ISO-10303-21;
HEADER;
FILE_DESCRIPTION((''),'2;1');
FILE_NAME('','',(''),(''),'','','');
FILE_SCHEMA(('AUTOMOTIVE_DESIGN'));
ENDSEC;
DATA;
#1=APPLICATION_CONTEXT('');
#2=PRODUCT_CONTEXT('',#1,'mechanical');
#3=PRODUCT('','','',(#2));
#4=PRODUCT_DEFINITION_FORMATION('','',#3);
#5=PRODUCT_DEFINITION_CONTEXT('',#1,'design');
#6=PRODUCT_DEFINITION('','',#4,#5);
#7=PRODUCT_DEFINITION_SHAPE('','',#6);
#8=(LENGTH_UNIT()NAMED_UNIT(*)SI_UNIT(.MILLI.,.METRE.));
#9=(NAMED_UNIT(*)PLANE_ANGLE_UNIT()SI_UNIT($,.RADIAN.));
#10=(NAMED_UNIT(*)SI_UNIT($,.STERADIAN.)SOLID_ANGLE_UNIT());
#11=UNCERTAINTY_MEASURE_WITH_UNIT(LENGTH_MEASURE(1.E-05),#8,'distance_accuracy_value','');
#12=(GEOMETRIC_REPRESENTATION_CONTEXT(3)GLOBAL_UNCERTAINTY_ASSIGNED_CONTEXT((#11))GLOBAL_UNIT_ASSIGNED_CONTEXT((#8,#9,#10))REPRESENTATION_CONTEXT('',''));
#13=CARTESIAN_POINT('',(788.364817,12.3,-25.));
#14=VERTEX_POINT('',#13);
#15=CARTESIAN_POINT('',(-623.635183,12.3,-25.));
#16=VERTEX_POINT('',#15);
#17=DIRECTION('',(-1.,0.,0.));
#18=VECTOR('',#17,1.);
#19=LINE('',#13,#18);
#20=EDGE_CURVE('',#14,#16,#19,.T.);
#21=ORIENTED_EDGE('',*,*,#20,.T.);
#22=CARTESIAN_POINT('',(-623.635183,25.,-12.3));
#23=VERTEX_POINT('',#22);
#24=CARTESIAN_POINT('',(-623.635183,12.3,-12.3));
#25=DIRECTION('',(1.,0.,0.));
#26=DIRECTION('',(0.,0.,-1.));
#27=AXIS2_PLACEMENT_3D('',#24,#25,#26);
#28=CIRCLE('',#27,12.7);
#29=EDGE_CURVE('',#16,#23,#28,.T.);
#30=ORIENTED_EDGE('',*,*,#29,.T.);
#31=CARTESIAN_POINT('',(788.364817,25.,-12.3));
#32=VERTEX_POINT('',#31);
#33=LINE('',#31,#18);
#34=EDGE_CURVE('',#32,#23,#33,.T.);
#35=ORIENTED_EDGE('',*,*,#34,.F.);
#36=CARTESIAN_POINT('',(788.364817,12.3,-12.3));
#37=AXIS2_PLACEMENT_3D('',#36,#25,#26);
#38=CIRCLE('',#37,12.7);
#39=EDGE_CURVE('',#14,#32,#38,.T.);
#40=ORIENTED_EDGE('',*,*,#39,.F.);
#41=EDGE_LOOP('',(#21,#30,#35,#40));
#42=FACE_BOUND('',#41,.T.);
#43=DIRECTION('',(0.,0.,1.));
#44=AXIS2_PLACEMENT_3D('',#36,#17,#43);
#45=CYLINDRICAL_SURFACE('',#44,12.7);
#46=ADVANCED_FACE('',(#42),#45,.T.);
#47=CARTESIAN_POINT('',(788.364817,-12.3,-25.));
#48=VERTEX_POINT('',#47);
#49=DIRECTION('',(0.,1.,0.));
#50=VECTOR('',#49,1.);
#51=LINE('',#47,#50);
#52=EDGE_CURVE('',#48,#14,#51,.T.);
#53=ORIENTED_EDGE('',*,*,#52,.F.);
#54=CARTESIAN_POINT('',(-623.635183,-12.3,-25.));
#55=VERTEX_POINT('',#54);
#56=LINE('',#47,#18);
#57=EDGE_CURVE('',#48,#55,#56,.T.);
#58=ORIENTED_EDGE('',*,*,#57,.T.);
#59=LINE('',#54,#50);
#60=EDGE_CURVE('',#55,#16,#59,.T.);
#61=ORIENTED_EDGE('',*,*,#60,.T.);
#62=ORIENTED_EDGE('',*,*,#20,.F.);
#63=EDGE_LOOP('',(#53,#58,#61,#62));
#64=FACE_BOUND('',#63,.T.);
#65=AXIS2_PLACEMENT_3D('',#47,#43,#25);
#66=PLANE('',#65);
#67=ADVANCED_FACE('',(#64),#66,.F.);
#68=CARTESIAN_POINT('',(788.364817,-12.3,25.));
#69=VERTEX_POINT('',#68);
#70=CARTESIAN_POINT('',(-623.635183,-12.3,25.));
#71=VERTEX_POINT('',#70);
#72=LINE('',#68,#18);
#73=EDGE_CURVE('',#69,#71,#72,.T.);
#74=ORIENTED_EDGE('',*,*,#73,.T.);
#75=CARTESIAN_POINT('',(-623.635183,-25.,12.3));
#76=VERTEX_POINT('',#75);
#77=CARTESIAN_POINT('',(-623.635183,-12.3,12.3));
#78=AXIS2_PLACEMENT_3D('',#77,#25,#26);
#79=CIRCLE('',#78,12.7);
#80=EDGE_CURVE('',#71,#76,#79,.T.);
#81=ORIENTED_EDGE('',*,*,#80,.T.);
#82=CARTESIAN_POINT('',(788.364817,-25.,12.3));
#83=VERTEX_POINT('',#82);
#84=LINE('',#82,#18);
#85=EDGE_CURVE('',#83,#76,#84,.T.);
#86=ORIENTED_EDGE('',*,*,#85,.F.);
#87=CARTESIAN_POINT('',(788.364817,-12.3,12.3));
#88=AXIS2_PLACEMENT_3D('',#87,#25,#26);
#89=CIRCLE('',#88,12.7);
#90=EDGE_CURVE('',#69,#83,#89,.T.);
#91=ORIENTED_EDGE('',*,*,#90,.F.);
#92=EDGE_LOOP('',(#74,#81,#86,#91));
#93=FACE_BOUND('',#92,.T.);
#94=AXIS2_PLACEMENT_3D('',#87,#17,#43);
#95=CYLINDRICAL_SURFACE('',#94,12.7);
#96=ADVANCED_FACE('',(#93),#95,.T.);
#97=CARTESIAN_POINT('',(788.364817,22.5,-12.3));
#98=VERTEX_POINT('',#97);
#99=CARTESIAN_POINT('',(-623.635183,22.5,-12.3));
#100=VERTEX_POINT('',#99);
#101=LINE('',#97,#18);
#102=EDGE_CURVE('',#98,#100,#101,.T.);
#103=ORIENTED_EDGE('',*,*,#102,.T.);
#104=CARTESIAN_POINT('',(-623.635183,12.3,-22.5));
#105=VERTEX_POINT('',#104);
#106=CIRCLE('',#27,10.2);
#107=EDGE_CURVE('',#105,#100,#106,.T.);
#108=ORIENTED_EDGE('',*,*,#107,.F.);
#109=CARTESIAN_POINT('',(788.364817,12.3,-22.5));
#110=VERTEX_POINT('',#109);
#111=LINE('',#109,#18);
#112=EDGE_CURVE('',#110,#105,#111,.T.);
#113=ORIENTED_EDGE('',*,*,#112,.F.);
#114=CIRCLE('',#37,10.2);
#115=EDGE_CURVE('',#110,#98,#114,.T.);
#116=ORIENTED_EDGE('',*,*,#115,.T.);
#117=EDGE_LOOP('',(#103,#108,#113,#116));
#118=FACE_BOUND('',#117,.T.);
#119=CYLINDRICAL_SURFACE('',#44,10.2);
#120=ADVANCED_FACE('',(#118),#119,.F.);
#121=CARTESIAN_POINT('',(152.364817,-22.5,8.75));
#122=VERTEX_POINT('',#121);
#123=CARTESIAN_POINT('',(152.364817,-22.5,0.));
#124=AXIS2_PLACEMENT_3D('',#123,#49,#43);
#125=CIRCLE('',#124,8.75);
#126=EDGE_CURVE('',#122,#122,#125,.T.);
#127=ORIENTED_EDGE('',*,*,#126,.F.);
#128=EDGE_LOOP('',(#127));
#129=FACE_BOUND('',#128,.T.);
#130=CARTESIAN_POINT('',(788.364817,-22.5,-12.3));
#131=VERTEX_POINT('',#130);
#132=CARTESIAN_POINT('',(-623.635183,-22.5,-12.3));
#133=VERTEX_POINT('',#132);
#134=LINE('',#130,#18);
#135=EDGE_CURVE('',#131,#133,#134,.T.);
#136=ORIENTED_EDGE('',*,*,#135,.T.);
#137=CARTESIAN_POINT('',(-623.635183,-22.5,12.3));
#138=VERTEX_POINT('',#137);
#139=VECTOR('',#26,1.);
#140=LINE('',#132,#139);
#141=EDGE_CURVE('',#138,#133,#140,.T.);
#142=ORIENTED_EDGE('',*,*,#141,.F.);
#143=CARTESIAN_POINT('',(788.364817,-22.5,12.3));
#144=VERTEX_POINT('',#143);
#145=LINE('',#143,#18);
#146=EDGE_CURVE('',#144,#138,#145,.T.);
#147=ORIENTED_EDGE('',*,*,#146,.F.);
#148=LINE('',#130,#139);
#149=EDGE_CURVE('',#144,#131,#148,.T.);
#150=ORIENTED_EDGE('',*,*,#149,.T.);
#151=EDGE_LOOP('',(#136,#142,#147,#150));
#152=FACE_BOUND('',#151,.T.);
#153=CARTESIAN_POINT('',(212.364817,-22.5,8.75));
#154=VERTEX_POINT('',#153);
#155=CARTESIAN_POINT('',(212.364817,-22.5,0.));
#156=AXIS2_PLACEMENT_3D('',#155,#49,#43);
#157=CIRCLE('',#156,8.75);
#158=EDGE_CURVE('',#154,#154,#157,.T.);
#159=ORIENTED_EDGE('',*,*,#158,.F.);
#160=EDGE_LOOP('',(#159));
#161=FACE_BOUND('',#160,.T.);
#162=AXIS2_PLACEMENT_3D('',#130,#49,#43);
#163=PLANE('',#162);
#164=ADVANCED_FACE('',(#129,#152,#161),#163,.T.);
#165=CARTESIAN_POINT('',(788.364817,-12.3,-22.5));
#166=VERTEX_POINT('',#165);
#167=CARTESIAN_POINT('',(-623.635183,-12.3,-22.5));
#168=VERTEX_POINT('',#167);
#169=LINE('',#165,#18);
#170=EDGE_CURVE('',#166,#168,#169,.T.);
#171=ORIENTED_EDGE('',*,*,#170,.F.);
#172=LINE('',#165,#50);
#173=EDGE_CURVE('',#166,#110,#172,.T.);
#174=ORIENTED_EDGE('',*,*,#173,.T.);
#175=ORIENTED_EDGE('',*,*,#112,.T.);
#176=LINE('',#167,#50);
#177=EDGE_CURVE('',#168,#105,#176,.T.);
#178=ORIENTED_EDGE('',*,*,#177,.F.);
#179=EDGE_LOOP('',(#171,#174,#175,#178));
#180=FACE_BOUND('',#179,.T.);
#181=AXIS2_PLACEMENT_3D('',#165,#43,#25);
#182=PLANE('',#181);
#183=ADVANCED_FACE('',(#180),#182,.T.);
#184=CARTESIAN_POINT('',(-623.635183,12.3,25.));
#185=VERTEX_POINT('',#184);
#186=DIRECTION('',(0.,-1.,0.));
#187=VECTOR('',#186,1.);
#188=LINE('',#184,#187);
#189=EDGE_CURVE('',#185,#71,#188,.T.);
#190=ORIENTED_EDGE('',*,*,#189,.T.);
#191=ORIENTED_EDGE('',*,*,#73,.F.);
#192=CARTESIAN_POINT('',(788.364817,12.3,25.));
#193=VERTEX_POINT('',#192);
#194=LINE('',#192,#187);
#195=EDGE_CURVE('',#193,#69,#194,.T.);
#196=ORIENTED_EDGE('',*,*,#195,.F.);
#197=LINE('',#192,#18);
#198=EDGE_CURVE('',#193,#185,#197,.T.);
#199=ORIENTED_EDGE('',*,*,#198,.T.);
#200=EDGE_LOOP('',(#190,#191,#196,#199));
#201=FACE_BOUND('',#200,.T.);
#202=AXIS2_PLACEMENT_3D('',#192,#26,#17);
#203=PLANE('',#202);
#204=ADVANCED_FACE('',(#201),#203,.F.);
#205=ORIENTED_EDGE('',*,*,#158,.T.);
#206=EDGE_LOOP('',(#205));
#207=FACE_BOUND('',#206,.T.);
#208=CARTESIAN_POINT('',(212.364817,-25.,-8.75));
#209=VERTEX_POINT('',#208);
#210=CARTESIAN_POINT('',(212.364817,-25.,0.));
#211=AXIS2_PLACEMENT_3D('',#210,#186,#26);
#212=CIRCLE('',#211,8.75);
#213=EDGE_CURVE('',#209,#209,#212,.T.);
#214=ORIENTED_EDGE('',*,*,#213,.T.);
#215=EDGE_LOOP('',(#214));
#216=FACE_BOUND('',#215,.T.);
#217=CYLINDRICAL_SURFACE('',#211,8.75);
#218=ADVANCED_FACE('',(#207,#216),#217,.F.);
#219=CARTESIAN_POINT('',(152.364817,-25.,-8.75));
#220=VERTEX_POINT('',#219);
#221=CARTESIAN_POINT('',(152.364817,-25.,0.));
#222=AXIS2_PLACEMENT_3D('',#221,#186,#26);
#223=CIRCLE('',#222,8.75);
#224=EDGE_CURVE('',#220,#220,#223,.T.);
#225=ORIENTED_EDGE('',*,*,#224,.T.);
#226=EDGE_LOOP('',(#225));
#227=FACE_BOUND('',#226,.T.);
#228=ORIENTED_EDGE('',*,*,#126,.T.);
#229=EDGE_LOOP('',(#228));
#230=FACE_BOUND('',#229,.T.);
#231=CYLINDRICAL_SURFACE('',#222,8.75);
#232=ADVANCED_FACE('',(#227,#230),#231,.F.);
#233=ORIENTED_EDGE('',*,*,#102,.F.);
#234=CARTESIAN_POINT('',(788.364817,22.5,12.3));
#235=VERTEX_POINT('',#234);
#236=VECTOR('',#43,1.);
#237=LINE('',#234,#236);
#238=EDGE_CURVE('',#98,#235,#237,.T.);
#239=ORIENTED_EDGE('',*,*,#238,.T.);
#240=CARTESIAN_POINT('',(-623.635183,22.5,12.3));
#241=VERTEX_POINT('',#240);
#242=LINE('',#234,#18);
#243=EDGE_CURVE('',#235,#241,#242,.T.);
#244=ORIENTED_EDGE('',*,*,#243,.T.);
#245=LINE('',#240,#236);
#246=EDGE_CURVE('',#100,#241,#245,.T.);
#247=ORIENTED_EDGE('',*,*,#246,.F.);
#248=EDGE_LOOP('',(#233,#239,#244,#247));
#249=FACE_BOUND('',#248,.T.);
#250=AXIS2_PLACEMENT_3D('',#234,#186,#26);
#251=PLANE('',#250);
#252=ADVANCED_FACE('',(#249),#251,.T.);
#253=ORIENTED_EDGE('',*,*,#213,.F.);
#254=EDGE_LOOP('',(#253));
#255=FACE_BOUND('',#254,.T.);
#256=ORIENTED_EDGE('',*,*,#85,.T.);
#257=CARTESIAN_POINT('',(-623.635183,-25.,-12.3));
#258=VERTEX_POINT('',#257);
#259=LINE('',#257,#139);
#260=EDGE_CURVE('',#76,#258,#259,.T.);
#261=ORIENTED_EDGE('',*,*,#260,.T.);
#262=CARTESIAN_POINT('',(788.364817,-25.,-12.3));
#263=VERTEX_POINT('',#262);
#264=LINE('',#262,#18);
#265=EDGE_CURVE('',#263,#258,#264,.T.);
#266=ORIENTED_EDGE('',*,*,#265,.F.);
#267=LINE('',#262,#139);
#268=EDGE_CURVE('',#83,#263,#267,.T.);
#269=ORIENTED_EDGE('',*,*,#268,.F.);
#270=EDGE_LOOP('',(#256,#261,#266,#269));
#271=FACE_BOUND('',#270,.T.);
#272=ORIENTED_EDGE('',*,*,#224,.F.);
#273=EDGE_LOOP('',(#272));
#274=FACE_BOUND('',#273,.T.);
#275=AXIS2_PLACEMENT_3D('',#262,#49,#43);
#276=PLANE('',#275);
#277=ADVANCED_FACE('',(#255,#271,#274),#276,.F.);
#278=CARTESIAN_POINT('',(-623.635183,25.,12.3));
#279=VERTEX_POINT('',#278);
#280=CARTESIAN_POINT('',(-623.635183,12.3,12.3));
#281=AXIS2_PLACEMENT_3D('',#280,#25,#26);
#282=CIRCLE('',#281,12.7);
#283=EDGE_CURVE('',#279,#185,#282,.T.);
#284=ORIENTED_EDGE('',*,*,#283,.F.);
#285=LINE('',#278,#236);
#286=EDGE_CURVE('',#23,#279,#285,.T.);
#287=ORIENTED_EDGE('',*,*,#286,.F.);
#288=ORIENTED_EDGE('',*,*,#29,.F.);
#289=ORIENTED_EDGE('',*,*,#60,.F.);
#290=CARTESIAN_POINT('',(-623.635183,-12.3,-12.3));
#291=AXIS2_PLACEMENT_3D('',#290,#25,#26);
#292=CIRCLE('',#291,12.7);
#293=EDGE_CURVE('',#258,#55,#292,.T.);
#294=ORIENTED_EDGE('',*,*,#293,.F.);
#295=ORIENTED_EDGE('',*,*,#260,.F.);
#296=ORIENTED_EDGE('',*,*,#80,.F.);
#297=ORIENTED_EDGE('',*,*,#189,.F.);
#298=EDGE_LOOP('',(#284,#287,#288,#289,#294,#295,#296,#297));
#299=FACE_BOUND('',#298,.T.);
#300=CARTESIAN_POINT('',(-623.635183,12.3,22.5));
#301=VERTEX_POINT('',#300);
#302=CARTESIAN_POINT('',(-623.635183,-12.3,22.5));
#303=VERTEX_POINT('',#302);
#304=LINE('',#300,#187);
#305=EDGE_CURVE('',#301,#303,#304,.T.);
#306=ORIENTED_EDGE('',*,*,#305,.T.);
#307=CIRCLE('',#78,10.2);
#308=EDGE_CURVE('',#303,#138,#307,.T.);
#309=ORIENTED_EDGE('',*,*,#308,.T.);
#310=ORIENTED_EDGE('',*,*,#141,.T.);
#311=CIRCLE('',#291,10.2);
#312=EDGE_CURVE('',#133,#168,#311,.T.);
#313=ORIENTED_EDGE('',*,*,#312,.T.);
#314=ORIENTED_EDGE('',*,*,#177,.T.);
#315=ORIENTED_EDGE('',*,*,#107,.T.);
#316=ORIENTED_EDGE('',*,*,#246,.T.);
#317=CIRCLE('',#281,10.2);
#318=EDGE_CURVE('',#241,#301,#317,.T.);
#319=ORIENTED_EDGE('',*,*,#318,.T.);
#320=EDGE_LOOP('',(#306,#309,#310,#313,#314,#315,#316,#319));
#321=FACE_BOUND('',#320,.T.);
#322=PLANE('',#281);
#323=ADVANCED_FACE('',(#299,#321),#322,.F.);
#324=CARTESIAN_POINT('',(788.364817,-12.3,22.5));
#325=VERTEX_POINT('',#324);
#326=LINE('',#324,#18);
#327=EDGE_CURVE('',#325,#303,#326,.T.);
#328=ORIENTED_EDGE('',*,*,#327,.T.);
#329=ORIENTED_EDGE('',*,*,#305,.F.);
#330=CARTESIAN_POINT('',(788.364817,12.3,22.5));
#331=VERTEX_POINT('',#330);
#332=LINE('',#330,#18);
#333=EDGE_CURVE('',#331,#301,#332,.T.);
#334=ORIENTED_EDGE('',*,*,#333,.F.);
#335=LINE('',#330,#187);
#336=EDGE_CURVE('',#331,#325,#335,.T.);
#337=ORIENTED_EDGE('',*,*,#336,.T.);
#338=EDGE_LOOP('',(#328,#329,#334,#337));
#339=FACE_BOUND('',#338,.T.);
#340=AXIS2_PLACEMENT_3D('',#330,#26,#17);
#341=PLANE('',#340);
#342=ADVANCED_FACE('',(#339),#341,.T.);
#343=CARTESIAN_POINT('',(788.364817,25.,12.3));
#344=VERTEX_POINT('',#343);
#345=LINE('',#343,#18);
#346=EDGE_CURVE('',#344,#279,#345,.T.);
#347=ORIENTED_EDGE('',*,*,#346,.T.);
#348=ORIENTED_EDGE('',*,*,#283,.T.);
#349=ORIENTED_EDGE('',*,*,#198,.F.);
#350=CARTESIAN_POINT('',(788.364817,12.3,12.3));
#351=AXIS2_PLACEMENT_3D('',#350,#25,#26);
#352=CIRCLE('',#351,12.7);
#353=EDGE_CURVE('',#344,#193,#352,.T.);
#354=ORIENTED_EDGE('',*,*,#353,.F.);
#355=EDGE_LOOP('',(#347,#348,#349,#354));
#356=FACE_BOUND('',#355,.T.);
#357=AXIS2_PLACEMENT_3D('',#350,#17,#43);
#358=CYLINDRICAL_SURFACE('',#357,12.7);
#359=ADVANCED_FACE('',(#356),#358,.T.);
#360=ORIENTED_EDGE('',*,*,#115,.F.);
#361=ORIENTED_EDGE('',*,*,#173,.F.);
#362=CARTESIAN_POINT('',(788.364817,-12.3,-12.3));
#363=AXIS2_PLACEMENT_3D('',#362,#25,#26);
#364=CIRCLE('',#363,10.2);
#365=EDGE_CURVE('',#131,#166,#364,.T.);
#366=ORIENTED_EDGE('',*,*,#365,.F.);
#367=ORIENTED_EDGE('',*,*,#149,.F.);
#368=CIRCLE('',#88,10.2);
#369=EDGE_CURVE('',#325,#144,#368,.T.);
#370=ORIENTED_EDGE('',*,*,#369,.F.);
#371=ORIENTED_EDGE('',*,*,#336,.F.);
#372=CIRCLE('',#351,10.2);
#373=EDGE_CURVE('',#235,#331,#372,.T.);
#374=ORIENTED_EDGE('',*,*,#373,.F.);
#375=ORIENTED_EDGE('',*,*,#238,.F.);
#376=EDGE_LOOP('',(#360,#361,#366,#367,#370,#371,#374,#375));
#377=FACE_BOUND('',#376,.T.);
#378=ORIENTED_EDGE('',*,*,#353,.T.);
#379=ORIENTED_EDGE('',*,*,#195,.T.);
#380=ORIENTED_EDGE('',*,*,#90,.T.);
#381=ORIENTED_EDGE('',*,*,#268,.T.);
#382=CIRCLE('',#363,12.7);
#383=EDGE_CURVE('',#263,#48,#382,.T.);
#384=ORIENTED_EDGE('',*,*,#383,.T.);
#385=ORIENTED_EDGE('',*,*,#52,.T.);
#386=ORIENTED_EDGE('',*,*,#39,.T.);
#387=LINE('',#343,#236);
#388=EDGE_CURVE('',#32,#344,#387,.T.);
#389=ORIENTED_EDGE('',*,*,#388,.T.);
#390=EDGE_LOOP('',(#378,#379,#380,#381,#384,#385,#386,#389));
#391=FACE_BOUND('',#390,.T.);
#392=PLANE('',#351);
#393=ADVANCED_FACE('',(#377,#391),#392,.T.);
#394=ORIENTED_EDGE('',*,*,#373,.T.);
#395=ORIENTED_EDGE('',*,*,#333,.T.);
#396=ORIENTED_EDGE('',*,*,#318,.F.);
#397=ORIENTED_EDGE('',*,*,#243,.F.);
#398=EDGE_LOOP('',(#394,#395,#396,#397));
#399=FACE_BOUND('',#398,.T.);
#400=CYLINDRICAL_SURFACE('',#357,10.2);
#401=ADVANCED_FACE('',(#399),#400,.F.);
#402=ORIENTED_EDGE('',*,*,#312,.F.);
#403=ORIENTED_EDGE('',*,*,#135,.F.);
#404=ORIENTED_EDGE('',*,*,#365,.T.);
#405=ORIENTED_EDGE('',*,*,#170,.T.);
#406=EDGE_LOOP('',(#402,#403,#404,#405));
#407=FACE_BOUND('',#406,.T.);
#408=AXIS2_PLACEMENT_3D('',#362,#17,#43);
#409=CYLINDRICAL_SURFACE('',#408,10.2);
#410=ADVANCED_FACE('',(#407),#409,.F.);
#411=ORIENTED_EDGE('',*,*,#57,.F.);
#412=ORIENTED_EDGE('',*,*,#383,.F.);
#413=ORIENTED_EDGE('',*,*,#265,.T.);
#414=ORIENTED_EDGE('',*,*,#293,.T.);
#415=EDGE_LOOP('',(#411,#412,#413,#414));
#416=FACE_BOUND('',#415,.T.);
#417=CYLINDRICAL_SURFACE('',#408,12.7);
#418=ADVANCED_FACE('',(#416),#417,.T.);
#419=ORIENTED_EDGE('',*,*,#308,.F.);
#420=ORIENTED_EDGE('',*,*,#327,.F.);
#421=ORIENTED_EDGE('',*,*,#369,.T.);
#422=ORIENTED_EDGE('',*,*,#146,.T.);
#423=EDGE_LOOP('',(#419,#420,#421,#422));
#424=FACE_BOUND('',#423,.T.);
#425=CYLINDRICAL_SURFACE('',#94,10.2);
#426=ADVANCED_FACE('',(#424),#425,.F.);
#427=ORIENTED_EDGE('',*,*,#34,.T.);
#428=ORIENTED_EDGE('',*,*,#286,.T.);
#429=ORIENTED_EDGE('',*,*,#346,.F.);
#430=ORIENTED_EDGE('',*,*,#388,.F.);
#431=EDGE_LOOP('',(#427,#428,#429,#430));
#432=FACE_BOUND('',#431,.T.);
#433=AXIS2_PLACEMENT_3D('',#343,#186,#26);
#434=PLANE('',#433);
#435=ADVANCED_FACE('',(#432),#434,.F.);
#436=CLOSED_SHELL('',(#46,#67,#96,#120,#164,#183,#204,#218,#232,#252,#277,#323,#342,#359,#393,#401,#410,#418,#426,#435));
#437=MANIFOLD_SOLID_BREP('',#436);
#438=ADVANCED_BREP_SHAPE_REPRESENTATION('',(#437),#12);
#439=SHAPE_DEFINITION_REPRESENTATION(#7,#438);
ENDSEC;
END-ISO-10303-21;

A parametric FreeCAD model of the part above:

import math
import FreeCAD as App
import Part
import Sketcher

V = App.Vector
Q = App.Units.Quantity

doc = App.newDocument("Part")
body = doc.addObject("PartDesign::Body", "Body")

# Sketch on YZ plane
sketch1 = doc.addObject("Sketcher::SketchObject", "Sketch")
body.addObject(sketch1)
sketch1.AttachmentSupport = (doc.YZ_Plane, [""])
sketch1.MapMode = "FlatFace"
sketch1.AttachmentOffset = App.Placement(V(0, 0, -623.635183), App.Rotation())
sketch1.addGeometry(Part.LineSegment(V(-12, -25, 0), V(12, -25, 0)), False)
sketch1.addGeometry(Part.ArcOfCircle(Part.Circle(V(12, -12, 0), V(0, 0, 1), 13), math.radians(-90), math.radians(0)), False)
sketch1.addGeometry(Part.LineSegment(V(25, -12, 0), V(25, 12, 0)), False)
sketch1.addGeometry(Part.ArcOfCircle(Part.Circle(V(12, 12, 0), V(0, 0, 1), 13), math.radians(0), math.radians(90)), False)
sketch1.addGeometry(Part.LineSegment(V(12, 25, 0), V(-12, 25, 0)), False)
sketch1.addGeometry(Part.ArcOfCircle(Part.Circle(V(-12, 12, 0), V(0, 0, 1), 13), math.radians(90), math.radians(180)), False)
sketch1.addGeometry(Part.LineSegment(V(-25, 12, 0), V(-25, -12, 0)), False)
sketch1.addGeometry(Part.ArcOfCircle(Part.Circle(V(-12, -12, 0), V(0, 0, 1), 13), math.radians(180), math.radians(270)), False)
sketch1.addGeometry(Part.LineSegment(V(12, -22, 0), V(-12, -22, 0)), False)
sketch1.addGeometry(Part.ArcOfCircle(Part.Circle(V(-12, -12, 0), V(0, 0, 1), 10), math.radians(180), math.radians(270)), False)
sketch1.addGeometry(Part.LineSegment(V(-22, -12, 0), V(-22, 12, 0)), False)
sketch1.addGeometry(Part.ArcOfCircle(Part.Circle(V(-12, 12, 0), V(0, 0, 1), 10), math.radians(90), math.radians(180)), False)
sketch1.addGeometry(Part.LineSegment(V(-12, 22, 0), V(12, 22, 0)), False)
sketch1.addGeometry(Part.ArcOfCircle(Part.Circle(V(12, 12, 0), V(0, 0, 1), 10), math.radians(0), math.radians(90)), False)
sketch1.addGeometry(Part.LineSegment(V(22, 12, 0), V(22, -12, 0)), False)
sketch1.addGeometry(Part.ArcOfCircle(Part.Circle(V(12, -12, 0), V(0, 0, 1), 10), math.radians(-90), math.radians(0)), False)
sketch1.addConstraint(Sketcher.Constraint("Tangent", 0, 2, 1, 1))
sketch1.addConstraint(Sketcher.Constraint("Tangent", 1, 2, 2, 1))
sketch1.addConstraint(Sketcher.Constraint("Tangent", 2, 2, 3, 1))
sketch1.addConstraint(Sketcher.Constraint("Tangent", 3, 2, 4, 1))
sketch1.addConstraint(Sketcher.Constraint("Tangent", 4, 2, 5, 1))
sketch1.addConstraint(Sketcher.Constraint("Tangent", 5, 2, 6, 1))
sketch1.addConstraint(Sketcher.Constraint("Tangent", 6, 2, 7, 1))
sketch1.addConstraint(Sketcher.Constraint("Tangent", 7, 2, 0, 1))
sketch1.addConstraint(Sketcher.Constraint("Tangent", 8, 2, 9, 2))
sketch1.addConstraint(Sketcher.Constraint("Tangent", 9, 1, 10, 1))
sketch1.addConstraint(Sketcher.Constraint("Tangent", 10, 2, 11, 2))
sketch1.addConstraint(Sketcher.Constraint("Tangent", 11, 1, 12, 1))
sketch1.addConstraint(Sketcher.Constraint("Tangent", 12, 2, 13, 2))
sketch1.addConstraint(Sketcher.Constraint("Tangent", 13, 1, 14, 1))
sketch1.addConstraint(Sketcher.Constraint("Tangent", 14, 2, 15, 2))
sketch1.addConstraint(Sketcher.Constraint("Tangent", 15, 1, 8, 1))
sketch1.addConstraint(Sketcher.Constraint("Horizontal", 0))
sketch1.addConstraint(Sketcher.Constraint("Vertical", 2))
sketch1.addConstraint(Sketcher.Constraint("Horizontal", 4))
sketch1.addConstraint(Sketcher.Constraint("Vertical", 6))
sketch1.addConstraint(Sketcher.Constraint("Horizontal", 8))
sketch1.addConstraint(Sketcher.Constraint("Vertical", 10))
sketch1.addConstraint(Sketcher.Constraint("Horizontal", 12))
sketch1.addConstraint(Sketcher.Constraint("Vertical", 14))
sketch1.addConstraint(Sketcher.Constraint("Coincident", 9, 3, 7, 3))
sketch1.addConstraint(Sketcher.Constraint("Coincident", 11, 3, 5, 3))
sketch1.addConstraint(Sketcher.Constraint("Coincident", 13, 3, 3, 3))
sketch1.addConstraint(Sketcher.Constraint("Equal", 1, 3))
sketch1.addConstraint(Sketcher.Constraint("Equal", 3, 5))
sketch1.addConstraint(Sketcher.Constraint("Equal", 5, 7))
sketch1.addConstraint(Sketcher.Constraint("Equal", 13, 15))
sketch1.addConstraint(Sketcher.Constraint("Symmetric", 1, 3, 5, 3, -1, 1))
sketch1.addConstraint(Sketcher.Constraint("Equal", 12, 2))
sketch1.addConstraint(Sketcher.Constraint("Radius", 1, Q("12.7 mm")))
sketch1.addConstraint(Sketcher.Constraint("Radius", 9, Q("10.2 mm")))
sketch1.addConstraint(Sketcher.Constraint("DistanceX", 0, 1, 0, 2, Q("24.6 mm")))
pad1 = doc.addObject("PartDesign::Pad", "Pad")
body.addObject(pad1)
pad1.Profile = sketch1
pad1.Length = 1412

# Sketch on XZ plane
sketch2 = doc.addObject("Sketcher::SketchObject", "Sketch001")
body.addObject(sketch2)
sketch2.AttachmentSupport = (doc.XZ_Plane, [""])
sketch2.MapMode = "FlatFace"
sketch2.AttachmentOffset = App.Placement(V(0, 0, 25), App.Rotation())
sketch2.addGeometry(Part.Circle(V(152, 0, 0), V(0, 0, 1), 9), False)
sketch2.addGeometry(Part.Circle(V(212, 0, 0), V(0, 0, 1), 9), False)
sketch2.addConstraint(Sketcher.Constraint("Equal", 0, 1))
sketch2.addConstraint(Sketcher.Constraint("PointOnObject", 0, 3, -1))
sketch2.addConstraint(Sketcher.Constraint("PointOnObject", 1, 3, -1))
sketch2.addConstraint(Sketcher.Constraint("Diameter", 0, Q("17.5 mm")))
sketch2.addConstraint(Sketcher.Constraint("DistanceX", 0, 3, 1, 3, Q("60 mm")))
sketch2.addConstraint(Sketcher.Constraint("DistanceX", -1, 1, 0, 3, Q("152.364817 mm")))
doc.recompute()
hole = doc.addObject("PartDesign::Hole", "Hole")
body.addObject(hole)
hole.Profile = sketch2
hole.ThreadType = "None"
hole.Diameter = 17.5
hole.DepthType = "Dimension"
hole.Depth = 2.5
hole.DrillPoint = "Flat"

doc.recompute()
